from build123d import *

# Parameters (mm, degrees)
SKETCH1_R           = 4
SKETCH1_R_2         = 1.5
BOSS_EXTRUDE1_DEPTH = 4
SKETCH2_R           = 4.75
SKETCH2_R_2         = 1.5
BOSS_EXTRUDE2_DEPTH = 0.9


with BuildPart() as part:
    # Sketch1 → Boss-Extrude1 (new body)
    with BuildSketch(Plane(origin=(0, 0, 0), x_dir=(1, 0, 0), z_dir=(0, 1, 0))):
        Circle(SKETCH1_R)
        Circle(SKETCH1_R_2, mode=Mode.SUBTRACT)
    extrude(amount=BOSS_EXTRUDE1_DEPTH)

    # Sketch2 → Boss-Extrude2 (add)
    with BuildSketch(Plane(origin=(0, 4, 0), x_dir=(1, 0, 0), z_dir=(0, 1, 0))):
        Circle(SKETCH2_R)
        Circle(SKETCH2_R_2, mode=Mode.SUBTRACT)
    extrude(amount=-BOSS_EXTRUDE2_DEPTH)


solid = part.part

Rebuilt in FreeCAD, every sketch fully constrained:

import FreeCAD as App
import Part
import Sketcher
from FreeCAD import Vector

doc = App.newDocument("Part")
body = doc.addObject("PartDesign::Body", "Body")

# Sketch on XZ plane
sketch1 = body.newObject("Sketcher::SketchObject", "Sketch")
sketch1.AttachmentSupport = (doc.getObject("XZ_Plane"), [""])
sketch1.MapMode = "FlatFace"
sketch1.addGeometry(Part.Circle(Vector(0, 0, 0), Vector(0, 0, 1), 4), False)
sketch1.addGeometry(Part.Circle(Vector(0, 0, 0), Vector(0, 0, 1), 1.5), False)
sketch1.addConstraint(Sketcher.Constraint("Coincident", 0, 3, -1, 1))
sketch1.addConstraint(Sketcher.Constraint("Coincident", 1, 3, -1, 1))
sketch1.addConstraint(Sketcher.Constraint("Diameter", 0, 8.0))
sketch1.addConstraint(Sketcher.Constraint("Diameter", 1, 3.0))
pad1 = body.newObject("PartDesign::Pad", "Pad")
pad1.Profile = sketch1
pad1.Length = 4
pad1.Reversed = True

# Sketch on XZ plane
sketch2 = body.newObject("Sketcher::SketchObject", "Sketch001")
sketch2.AttachmentSupport = (doc.getObject("XZ_Plane"), [""])
sketch2.MapMode = "FlatFace"
sketch2.AttachmentOffset = App.Placement(Vector(0, 0, -4), App.Rotation())
sketch2.addGeometry(Part.Circle(Vector(0, 0, 0), Vector(0, 0, 1), 4.8), False)
sketch2.addGeometry(Part.Circle(Vector(0, 0, 0), Vector(0, 0, 1), 1.5), False)
sketch2.addConstraint(Sketcher.Constraint("Coincident", 0, 3, -1, 1))
sketch2.addConstraint(Sketcher.Constraint("Coincident", 1, 3, -1, 1))
sketch2.addConstraint(Sketcher.Constraint("Diameter", 1, 3.0))
sketch2.addConstraint(Sketcher.Constraint("Diameter", 0, 9.5))
pad2 = body.newObject("PartDesign::Pad", "Pad001")
pad2.Profile = sketch2
pad2.Length = 0.9

doc.recompute()
